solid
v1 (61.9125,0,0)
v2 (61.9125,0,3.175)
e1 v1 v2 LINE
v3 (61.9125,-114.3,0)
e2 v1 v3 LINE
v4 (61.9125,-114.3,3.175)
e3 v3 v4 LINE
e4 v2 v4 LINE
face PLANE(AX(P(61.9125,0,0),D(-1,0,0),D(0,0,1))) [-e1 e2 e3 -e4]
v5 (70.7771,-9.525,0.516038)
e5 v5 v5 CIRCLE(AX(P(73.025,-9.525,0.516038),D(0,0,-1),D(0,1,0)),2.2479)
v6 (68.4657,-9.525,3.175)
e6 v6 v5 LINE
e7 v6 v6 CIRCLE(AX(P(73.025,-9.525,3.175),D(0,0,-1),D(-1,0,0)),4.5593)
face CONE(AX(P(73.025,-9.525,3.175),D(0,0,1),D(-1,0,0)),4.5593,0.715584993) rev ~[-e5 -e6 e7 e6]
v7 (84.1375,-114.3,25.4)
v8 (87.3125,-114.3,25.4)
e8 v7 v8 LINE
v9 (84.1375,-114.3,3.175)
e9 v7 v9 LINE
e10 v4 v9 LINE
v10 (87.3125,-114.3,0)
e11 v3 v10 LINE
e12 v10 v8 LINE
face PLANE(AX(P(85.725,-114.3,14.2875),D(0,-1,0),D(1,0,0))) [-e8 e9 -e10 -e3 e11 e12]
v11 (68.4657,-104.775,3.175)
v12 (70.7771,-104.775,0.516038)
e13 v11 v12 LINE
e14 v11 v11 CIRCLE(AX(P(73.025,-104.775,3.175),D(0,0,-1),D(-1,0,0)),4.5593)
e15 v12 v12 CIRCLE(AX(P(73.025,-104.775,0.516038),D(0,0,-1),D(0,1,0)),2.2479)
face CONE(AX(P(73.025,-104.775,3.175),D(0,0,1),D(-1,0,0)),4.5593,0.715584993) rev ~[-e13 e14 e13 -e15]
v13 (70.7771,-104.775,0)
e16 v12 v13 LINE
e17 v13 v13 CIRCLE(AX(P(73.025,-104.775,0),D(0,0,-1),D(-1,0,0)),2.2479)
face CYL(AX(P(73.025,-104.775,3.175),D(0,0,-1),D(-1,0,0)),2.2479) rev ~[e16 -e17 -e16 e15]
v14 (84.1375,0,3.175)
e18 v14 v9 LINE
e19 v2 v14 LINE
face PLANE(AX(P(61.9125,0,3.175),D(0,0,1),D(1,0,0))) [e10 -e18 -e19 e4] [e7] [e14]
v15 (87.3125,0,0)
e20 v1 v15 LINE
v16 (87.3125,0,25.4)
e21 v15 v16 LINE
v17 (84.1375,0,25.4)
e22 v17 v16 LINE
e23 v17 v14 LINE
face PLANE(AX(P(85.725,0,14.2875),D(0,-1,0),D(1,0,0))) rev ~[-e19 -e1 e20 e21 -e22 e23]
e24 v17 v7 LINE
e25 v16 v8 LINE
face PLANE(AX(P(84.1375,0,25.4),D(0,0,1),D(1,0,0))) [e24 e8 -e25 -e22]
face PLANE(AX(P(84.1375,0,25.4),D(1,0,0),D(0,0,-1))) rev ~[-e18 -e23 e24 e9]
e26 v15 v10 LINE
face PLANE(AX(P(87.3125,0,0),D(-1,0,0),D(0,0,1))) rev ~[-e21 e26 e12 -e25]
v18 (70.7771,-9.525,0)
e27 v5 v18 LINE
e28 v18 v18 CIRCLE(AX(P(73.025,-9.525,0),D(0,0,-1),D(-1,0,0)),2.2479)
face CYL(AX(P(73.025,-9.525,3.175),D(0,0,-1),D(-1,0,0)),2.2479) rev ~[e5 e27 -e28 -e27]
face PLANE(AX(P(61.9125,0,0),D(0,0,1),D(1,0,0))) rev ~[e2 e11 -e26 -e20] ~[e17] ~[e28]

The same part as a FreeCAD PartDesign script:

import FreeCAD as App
import Part
import Sketcher
from FreeCAD import Vector
Q = App.Units.Quantity


def add_polygon(sketch, points):
    """Adds a closed chain of lines whose ends are joined by coincident constraints."""
    first, n = sketch.GeometryCount, len(points)
    for a, b in zip(points, points[1:] + points[:1]):
        sketch.addGeometry(Part.LineSegment(App.Vector(*a, 0), App.Vector(*b, 0)), False)
    for i in range(n):
        sketch.addConstraint(Sketcher.Constraint("Coincident", first + i, 2, first + (i + 1) % n, 1))

doc = App.newDocument("Part")
body = doc.addObject("PartDesign::Body", "Body")

# Sketch on XZ plane
sketch1 = body.newObject("Sketcher::SketchObject", "Sketch")
sketch1.AttachmentSupport = (doc.getObject("XZ_Plane"), [""])
sketch1.MapMode = "FlatFace"
add_polygon(sketch1, [(84.1375, 25.4), (84.1375, 3.175), (61.9125, 3.175), (61.9125, 0), (87.3125, 0), (87.3125, 25.4)])  # lines 0-5
sketch1.addConstraint(Sketcher.Constraint("Vertical", 0))
sketch1.addConstraint(Sketcher.Constraint("Horizontal", 1))
sketch1.addConstraint(Sketcher.Constraint("Vertical", 2))
sketch1.addConstraint(Sketcher.Constraint("Horizontal", 3))
sketch1.addConstraint(Sketcher.Constraint("Vertical", 4))
sketch1.addConstraint(Sketcher.Constraint("Horizontal", 5))
sketch1.addConstraint(Sketcher.Constraint("PointOnObject", 2, 2, -1))
sketch1.addConstraint(Sketcher.Constraint("Equal", 1, 0))
sketch1.addConstraint(Sketcher.Constraint("Equal", 5, 2))
sketch1.addConstraint(Sketcher.Constraint("DistanceX", 3, 1, 3, 2, Q("1 in")))
sketch1.addConstraint(Sketcher.Constraint("DistanceX", 1, 2, 1, 1, Q("0.875 in")))
sketch1.addConstraint(Sketcher.Constraint("DistanceX", -1, 1, 0, 2, Q("3.3125 in")))
pad1 = body.newObject("PartDesign::Pad", "Pad")
pad1.Profile = sketch1
pad1.Length = Q("4.5 in")

# Sketch on XY plane
sketch2 = body.newObject("Sketcher::SketchObject", "Sketch001")
sketch2.AttachmentSupport = (doc.getObject("XY_Plane"), [""])
sketch2.MapMode = "FlatFace"
sketch2.AttachmentOffset = App.Placement(Vector(0, 0, 0.125 * 25.4), App.Rotation())
sketch2.addGeometry(Part.Circle(Vector(73.025, -104.775, 0), Vector(0, 0, 1), 2.2479), False)
sketch2.addGeometry(Part.Circle(Vector(73.025, -9.525, 0), Vector(0, 0, 1), 2.2479), False)
sketch2.addConstraint(Sketcher.Constraint("Equal", 0, 1))
sketch2.addConstraint(Sketcher.Constraint("Vertical", 0, 3, 1, 3))
sketch2.addConstraint(Sketcher.Constraint("Diameter", 0, Q("0.177 in")))
sketch2.addConstraint(Sketcher.Constraint("DistanceY", 0, 3, 1, 3, Q("3.75 in")))
sketch2.addConstraint(Sketcher.Constraint("DistanceX", -1, 1, 0, 3, Q("2.875 in")))
sketch2.addConstraint(Sketcher.Constraint("DistanceY", 0, 3, -1, 1, Q("4.125 in")))
doc.recompute()
hole = body.newObject("PartDesign::Hole", "Hole")
hole.Profile = sketch2
hole.ThreadType = "None"
hole.Diameter = Q("0.177 in")
hole.DepthType = "ThroughAll"
hole.HoleCutType = "Countersink"
hole.HoleCutDiameter = Q("0.359 in")
hole.HoleCutCountersinkAngle = 82

doc.recompute()
